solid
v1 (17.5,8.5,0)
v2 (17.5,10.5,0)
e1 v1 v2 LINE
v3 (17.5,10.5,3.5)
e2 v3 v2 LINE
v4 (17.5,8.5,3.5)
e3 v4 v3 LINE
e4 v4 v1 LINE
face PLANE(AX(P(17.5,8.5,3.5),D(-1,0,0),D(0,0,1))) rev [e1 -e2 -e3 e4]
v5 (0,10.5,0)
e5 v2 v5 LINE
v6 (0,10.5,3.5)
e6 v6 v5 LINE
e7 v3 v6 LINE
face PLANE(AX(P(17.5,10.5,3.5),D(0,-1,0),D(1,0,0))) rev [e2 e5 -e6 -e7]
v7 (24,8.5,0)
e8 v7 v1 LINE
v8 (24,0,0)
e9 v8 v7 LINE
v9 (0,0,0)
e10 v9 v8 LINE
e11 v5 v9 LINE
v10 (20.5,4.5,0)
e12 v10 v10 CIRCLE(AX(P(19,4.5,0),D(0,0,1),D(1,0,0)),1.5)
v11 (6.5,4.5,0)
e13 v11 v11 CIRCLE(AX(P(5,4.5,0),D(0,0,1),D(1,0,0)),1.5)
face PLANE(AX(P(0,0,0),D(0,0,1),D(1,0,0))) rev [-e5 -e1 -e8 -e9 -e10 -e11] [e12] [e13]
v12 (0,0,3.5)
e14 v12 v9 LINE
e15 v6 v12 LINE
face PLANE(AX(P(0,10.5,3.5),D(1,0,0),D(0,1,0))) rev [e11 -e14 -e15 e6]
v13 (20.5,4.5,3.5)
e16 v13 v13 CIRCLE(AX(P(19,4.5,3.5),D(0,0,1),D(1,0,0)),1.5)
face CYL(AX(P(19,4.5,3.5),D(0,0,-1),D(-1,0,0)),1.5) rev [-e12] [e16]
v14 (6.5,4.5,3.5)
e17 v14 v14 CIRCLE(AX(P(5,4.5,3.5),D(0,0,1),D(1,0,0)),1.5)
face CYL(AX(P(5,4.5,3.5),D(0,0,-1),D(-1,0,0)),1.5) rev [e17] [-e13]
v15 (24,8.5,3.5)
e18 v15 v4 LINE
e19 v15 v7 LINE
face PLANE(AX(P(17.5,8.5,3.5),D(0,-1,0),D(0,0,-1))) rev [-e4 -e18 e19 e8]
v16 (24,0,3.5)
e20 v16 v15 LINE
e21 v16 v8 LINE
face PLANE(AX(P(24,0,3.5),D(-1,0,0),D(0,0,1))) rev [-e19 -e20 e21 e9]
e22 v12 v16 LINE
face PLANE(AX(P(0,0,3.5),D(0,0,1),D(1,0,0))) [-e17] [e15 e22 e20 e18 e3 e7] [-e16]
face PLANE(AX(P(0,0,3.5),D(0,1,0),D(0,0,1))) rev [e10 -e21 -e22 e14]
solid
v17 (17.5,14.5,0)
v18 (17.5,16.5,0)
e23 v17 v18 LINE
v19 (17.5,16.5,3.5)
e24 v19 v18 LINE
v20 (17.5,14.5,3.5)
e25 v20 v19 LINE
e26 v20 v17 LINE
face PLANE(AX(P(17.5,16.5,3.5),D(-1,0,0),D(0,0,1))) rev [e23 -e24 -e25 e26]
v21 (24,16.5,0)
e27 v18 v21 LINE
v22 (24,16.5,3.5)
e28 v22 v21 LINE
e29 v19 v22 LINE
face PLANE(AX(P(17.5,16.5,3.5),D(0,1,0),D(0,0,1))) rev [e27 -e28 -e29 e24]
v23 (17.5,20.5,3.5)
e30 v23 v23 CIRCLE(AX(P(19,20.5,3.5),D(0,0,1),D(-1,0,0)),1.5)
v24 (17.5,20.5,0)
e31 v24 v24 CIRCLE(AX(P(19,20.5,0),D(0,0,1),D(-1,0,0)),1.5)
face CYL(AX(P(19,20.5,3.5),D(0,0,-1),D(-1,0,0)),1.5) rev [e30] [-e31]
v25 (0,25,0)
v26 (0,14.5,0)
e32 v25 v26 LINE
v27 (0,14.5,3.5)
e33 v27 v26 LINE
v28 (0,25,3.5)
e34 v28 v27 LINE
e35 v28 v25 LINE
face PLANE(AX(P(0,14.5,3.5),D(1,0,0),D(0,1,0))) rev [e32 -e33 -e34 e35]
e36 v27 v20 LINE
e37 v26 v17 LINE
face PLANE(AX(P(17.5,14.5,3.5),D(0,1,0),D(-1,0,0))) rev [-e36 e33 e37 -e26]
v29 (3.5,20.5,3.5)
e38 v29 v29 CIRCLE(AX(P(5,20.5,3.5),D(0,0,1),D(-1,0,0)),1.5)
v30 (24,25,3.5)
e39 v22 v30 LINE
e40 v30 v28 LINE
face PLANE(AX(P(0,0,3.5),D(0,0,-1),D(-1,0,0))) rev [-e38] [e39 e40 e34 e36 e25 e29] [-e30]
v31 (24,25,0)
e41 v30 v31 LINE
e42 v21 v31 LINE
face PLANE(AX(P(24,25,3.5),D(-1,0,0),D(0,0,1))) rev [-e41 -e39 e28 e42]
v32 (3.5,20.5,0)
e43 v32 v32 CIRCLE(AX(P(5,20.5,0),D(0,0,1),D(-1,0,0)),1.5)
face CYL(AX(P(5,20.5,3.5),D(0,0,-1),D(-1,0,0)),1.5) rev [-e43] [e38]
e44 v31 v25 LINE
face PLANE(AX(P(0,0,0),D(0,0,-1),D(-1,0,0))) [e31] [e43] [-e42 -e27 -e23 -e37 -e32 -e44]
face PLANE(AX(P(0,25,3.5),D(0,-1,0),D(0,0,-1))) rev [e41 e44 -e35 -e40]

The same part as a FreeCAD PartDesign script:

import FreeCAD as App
import Part
import Sketcher
from FreeCAD import Vector
Q = App.Units.Quantity


def add_polygon(sketch, points):
    """Adds a closed chain of lines whose ends are joined by coincident constraints."""
    first, n = sketch.GeometryCount, len(points)
    for a, b in zip(points, points[1:] + points[:1]):
        sketch.addGeometry(Part.LineSegment(App.Vector(*a, 0), App.Vector(*b, 0)), False)
    for i in range(n):
        sketch.addConstraint(Sketcher.Constraint("Coincident", first + i, 2, first + (i + 1) % n, 1))

doc = App.newDocument("Part")
params = doc.addObject("Spreadsheet::Sheet", "Params")
for row, (alias, value) in enumerate([
    ("sketch1_diameter", "3 mm"),
    ("sketch1_width", "24 mm"),
    ("sketch1_height", "2 mm"),
    ("sketch1_width2", "17.5 mm"),
    ("sketch1_height2", "10.5 mm"),
    ("pad1_length", "3.5 mm"),
    ("sketch2_diameter", "3 mm"),
    ("sketch2_width", "24 mm"),
    ("sketch2_height", "2 mm"),
    ("sketch2_width2", "17.5 mm"),
    ("sketch2_height2", "10.5 mm"),
    ("pad2_length", "3.5 mm"),
], start=1):
    params.set(f"A{row}", alias)
    params.set(f"B{row}", "=" + value)
    params.setAlias(f"B{row}", alias)

body = doc.addObject("PartDesign::Body", "Body")

sketch1 = body.newObject("Sketcher::SketchObject", "Sketch")
sketch1.AttachmentSupport = (doc.getObject("XY_Plane"), [""])
sketch1.MapMode = "FlatFace"
add_polygon(sketch1, [(17.5, 8.5), (17.5, 10.5), (0, 10.5), (0, 0), (24, 0), (24, 8.5)])
sketch1.addGeometry(Part.Circle(Vector(5, 4.5, 0), Vector(0, 0, 1), 1.5), False)
sketch1.addGeometry(Part.Circle(Vector(19, 4.5, 0), Vector(0, 0, 1), 1.5), False)
sketch1.addConstraint([
    Sketcher.Constraint("Vertical", 0),
    Sketcher.Constraint("Horizontal", 1),
    Sketcher.Constraint("Vertical", 2),
    Sketcher.Constraint("Horizontal", 3),
    Sketcher.Constraint("Vertical", 4),
    Sketcher.Constraint("Horizontal", 5),
    Sketcher.Constraint("Coincident", 2, 2, -1, 1),
    Sketcher.Constraint("Equal", 6, 7),
    Sketcher.Constraint("Horizontal", 6, 3, 7, 3),
    Sketcher.Constraint("Diameter", 6, Q("3 mm")),
    Sketcher.Constraint("DistanceX", 3, 1, 3, 2, Q("24 mm")),
    Sketcher.Constraint("DistanceY", 0, 1, 0, 2, Q("2 mm")),
    Sketcher.Constraint("DistanceX", 1, 2, 1, 1, Q("17.5 mm")),
    Sketcher.Constraint("DistanceY", 2, 2, 2, 1, Q("10.5 mm")),
    Sketcher.Constraint("DistanceX", -1, 1, 6, 3, Q("5 mm")),
    Sketcher.Constraint("DistanceX", -1, 1, 7, 3, Q("19 mm")),
    Sketcher.Constraint("DistanceY", 7, 3, 0, 2, Q("6 mm")),
])
sketch1.setExpression("Constraints[15]", "Params.sketch1_diameter")
sketch1.setExpression("Constraints[16]", "Params.sketch1_width")
sketch1.setExpression("Constraints[17]", "Params.sketch1_height")
sketch1.setExpression("Constraints[18]", "Params.sketch1_width2")
sketch1.setExpression("Constraints[19]", "Params.sketch1_height2")
pad1 = body.newObject("PartDesign::Pad", "Pad")
pad1.Profile = sketch1
pad1.setExpression("Length", "Params.pad1_length")
body2 = doc.addObject("PartDesign::Body", "Body001")

sketch2 = body2.newObject("Sketcher::SketchObject", "Sketch001")
sketch2.AttachmentSupport = (doc.getObject("XY_Plane001"), [""])
sketch2.MapMode = "FlatFace"
add_polygon(sketch2, [(0, 25), (0, 14.5), (17.5, 14.5), (17.5, 16.5), (24, 16.5), (24, 25)])
sketch2.addGeometry(Part.Circle(Vector(19, 20.5, 0), Vector(0, 0, 1), 1.5), False)
sketch2.addGeometry(Part.Circle(Vector(5, 20.5, 0), Vector(0, 0, 1), 1.5), False)
sketch2.addConstraint([
    Sketcher.Constraint("Vertical", 0),
    Sketcher.Constraint("Horizontal", 1),
    Sketcher.Constraint("Vertical", 2),
    Sketcher.Constraint("Horizontal", 3),
    Sketcher.Constraint("Vertical", 4),
    Sketcher.Constraint("Horizontal", 5),
    Sketcher.Constraint("Equal", 6, 7),
    Sketcher.Constraint("PointOnObject", 0, 2, -2),
    Sketcher.Constraint("Horizontal", 6, 3, 7, 3),
    Sketcher.Constraint("Diameter", 6, Q("3 mm")),
    Sketcher.Constraint("DistanceX", 5, 2, 5, 1, Q("24 mm")),
    Sketcher.Constraint("DistanceY", 2, 1, 2, 2, Q("2 mm")),
    Sketcher.Constraint("DistanceX", 1, 1, 1, 2, Q("17.5 mm")),
    Sketcher.Constraint("DistanceY", 0, 2, 0, 1, Q("10.5 mm")),
    Sketcher.Constraint("DistanceX", -1, 1, 6, 3, Q("19 mm")),
    Sketcher.Constraint("DistanceX", -1, 1, 7, 3, Q("5 mm")),
    Sketcher.Constraint("DistanceY", -1, 1, 4, 2, Q("25 mm")),
    Sketcher.Constraint("DistanceY", 0, 2, 7, 3, Q("6 mm")),
])
sketch2.setExpression("Constraints[15]", "Params.sketch2_diameter")
sketch2.setExpression("Constraints[16]", "Params.sketch2_width")
sketch2.setExpression("Constraints[17]", "Params.sketch2_height")
sketch2.setExpression("Constraints[18]", "Params.sketch2_width2")
sketch2.setExpression("Constraints[19]", "Params.sketch2_height2")
pad2 = body2.newObject("PartDesign::Pad", "Pad001")
pad2.Profile = sketch2
pad2.setExpression("Length", "Params.pad2_length")

doc.recompute()
